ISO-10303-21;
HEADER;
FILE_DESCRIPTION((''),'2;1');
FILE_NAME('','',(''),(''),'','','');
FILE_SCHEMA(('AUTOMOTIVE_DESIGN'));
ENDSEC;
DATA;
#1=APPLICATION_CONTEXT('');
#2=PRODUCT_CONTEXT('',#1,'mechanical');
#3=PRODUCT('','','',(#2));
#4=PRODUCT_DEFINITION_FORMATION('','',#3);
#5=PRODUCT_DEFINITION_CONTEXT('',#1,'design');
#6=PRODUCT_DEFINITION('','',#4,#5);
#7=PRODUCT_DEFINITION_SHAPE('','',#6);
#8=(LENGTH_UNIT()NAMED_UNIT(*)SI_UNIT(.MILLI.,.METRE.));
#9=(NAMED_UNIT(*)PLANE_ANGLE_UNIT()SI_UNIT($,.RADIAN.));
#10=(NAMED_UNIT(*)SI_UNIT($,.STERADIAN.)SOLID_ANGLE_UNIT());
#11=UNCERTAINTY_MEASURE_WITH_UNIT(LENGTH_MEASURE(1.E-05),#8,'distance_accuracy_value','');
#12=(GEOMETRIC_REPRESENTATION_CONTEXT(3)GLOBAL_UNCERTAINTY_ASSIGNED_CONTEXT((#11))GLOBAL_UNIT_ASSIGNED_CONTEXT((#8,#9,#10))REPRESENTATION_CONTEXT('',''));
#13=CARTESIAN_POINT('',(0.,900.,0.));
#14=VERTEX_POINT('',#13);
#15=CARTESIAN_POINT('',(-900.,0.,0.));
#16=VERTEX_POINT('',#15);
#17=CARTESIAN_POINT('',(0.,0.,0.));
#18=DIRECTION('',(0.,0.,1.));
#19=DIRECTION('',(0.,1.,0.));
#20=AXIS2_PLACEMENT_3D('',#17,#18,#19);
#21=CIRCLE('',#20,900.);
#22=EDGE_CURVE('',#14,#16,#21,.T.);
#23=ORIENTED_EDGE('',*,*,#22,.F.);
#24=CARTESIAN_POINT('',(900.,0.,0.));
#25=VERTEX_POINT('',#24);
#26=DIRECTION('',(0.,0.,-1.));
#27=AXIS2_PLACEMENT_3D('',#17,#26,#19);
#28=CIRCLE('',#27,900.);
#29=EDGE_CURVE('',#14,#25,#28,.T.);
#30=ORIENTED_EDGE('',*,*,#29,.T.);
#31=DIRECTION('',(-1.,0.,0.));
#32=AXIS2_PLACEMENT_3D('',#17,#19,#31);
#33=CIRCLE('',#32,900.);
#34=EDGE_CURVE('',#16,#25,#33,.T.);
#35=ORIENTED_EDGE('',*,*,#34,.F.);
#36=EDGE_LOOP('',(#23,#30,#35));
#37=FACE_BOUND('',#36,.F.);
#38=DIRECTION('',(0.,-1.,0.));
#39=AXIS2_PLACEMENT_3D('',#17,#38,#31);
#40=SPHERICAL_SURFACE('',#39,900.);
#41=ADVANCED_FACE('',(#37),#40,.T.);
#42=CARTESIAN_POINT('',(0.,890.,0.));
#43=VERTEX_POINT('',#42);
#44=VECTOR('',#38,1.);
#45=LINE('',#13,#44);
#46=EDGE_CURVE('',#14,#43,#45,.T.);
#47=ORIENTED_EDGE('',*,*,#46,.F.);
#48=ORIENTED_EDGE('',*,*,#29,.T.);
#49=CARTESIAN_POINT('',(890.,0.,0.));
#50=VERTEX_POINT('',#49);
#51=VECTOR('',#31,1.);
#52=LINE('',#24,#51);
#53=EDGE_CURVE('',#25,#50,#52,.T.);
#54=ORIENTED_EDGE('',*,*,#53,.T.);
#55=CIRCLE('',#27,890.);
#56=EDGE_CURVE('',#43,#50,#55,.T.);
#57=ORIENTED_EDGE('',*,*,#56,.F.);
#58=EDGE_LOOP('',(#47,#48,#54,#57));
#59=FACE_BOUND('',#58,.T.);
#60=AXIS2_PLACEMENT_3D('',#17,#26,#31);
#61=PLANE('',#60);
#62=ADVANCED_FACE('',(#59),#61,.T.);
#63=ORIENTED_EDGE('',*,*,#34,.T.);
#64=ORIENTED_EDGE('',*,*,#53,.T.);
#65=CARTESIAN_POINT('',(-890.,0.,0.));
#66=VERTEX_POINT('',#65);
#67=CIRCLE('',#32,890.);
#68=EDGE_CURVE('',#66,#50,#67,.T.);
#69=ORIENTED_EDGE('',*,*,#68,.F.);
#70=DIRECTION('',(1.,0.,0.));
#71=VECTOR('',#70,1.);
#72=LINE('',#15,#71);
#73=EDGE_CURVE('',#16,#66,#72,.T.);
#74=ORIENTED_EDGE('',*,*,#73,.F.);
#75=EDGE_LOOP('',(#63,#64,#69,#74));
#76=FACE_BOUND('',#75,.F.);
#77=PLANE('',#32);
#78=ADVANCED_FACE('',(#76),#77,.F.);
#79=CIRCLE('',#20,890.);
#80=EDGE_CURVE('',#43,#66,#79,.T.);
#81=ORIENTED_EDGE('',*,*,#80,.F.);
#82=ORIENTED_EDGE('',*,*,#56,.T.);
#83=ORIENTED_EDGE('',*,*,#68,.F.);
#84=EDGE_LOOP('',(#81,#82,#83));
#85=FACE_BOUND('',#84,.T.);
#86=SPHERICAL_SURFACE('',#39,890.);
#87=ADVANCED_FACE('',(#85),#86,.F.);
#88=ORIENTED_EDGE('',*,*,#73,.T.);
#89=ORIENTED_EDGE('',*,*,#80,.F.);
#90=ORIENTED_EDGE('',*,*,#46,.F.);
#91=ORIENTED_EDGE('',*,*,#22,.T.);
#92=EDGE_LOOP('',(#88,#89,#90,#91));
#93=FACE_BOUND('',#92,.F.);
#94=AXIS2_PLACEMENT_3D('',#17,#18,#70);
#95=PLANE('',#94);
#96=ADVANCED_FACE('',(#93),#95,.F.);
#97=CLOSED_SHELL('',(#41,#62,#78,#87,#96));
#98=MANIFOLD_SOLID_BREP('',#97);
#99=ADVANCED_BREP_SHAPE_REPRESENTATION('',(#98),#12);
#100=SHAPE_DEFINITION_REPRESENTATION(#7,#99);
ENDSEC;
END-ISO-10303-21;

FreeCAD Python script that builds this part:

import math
import FreeCAD as App
import Part
import Sketcher
from FreeCAD import Vector
Q = App.Units.Quantity

doc = App.newDocument("Part")
body = doc.addObject("PartDesign::Body", "Body")

sketch1 = body.newObject("Sketcher::SketchObject", "Sketch")
sketch1.AttachmentSupport = (doc.getObject("XY_Plane"), [""])
sketch1.MapMode = "FlatFace"
sketch1.addGeometry(Part.LineSegment(Vector(0, 890, 0), Vector(0, 900, 0)), False)
sketch1.addGeometry(Part.ArcOfCircle(Part.Circle(Vector(0, 0, 0), Vector(0, 0, 1), 900), math.radians(90), math.radians(180)), False)
sketch1.addGeometry(Part.LineSegment(Vector(-900, 0, 0), Vector(-890, 0, 0)), False)
sketch1.addGeometry(Part.ArcOfCircle(Part.Circle(Vector(0, 0, 0), Vector(0, 0, 1), 890), math.radians(90), math.radians(180)), False)
sketch1.addConstraint(Sketcher.Constraint("Coincident", 0, 2, 1, 1))
sketch1.addConstraint(Sketcher.Constraint("Coincident", 1, 2, 2, 1))
sketch1.addConstraint(Sketcher.Constraint("Coincident", 2, 2, 3, 2))
sketch1.addConstraint(Sketcher.Constraint("Coincident", 3, 1, 0, 1))
sketch1.addConstraint(Sketcher.Constraint("Vertical", 0))
sketch1.addConstraint(Sketcher.Constraint("Horizontal", 2))
sketch1.addConstraint(Sketcher.Constraint("Coincident", 1, 3, -1, 1))
sketch1.addConstraint(Sketcher.Constraint("Coincident", 3, 3, -1, 1))
sketch1.addConstraint(Sketcher.Constraint("PointOnObject", 0, 2, -2))
sketch1.addConstraint(Sketcher.Constraint("PointOnObject", 2, 2, -1))
sketch1.addConstraint(Sketcher.Constraint("Radius", 1, Q("900 mm")))
sketch1.addConstraint(Sketcher.Constraint("DistanceX", 2, 1, 2, 2, Q("10 mm")))
revolution = body.newObject("PartDesign::Revolution", "Revolution")
revolution.Profile = sketch1
revolution.ReferenceAxis = (sketch1, ["V_Axis"])
revolution.Angle = 180

doc.recompute()
